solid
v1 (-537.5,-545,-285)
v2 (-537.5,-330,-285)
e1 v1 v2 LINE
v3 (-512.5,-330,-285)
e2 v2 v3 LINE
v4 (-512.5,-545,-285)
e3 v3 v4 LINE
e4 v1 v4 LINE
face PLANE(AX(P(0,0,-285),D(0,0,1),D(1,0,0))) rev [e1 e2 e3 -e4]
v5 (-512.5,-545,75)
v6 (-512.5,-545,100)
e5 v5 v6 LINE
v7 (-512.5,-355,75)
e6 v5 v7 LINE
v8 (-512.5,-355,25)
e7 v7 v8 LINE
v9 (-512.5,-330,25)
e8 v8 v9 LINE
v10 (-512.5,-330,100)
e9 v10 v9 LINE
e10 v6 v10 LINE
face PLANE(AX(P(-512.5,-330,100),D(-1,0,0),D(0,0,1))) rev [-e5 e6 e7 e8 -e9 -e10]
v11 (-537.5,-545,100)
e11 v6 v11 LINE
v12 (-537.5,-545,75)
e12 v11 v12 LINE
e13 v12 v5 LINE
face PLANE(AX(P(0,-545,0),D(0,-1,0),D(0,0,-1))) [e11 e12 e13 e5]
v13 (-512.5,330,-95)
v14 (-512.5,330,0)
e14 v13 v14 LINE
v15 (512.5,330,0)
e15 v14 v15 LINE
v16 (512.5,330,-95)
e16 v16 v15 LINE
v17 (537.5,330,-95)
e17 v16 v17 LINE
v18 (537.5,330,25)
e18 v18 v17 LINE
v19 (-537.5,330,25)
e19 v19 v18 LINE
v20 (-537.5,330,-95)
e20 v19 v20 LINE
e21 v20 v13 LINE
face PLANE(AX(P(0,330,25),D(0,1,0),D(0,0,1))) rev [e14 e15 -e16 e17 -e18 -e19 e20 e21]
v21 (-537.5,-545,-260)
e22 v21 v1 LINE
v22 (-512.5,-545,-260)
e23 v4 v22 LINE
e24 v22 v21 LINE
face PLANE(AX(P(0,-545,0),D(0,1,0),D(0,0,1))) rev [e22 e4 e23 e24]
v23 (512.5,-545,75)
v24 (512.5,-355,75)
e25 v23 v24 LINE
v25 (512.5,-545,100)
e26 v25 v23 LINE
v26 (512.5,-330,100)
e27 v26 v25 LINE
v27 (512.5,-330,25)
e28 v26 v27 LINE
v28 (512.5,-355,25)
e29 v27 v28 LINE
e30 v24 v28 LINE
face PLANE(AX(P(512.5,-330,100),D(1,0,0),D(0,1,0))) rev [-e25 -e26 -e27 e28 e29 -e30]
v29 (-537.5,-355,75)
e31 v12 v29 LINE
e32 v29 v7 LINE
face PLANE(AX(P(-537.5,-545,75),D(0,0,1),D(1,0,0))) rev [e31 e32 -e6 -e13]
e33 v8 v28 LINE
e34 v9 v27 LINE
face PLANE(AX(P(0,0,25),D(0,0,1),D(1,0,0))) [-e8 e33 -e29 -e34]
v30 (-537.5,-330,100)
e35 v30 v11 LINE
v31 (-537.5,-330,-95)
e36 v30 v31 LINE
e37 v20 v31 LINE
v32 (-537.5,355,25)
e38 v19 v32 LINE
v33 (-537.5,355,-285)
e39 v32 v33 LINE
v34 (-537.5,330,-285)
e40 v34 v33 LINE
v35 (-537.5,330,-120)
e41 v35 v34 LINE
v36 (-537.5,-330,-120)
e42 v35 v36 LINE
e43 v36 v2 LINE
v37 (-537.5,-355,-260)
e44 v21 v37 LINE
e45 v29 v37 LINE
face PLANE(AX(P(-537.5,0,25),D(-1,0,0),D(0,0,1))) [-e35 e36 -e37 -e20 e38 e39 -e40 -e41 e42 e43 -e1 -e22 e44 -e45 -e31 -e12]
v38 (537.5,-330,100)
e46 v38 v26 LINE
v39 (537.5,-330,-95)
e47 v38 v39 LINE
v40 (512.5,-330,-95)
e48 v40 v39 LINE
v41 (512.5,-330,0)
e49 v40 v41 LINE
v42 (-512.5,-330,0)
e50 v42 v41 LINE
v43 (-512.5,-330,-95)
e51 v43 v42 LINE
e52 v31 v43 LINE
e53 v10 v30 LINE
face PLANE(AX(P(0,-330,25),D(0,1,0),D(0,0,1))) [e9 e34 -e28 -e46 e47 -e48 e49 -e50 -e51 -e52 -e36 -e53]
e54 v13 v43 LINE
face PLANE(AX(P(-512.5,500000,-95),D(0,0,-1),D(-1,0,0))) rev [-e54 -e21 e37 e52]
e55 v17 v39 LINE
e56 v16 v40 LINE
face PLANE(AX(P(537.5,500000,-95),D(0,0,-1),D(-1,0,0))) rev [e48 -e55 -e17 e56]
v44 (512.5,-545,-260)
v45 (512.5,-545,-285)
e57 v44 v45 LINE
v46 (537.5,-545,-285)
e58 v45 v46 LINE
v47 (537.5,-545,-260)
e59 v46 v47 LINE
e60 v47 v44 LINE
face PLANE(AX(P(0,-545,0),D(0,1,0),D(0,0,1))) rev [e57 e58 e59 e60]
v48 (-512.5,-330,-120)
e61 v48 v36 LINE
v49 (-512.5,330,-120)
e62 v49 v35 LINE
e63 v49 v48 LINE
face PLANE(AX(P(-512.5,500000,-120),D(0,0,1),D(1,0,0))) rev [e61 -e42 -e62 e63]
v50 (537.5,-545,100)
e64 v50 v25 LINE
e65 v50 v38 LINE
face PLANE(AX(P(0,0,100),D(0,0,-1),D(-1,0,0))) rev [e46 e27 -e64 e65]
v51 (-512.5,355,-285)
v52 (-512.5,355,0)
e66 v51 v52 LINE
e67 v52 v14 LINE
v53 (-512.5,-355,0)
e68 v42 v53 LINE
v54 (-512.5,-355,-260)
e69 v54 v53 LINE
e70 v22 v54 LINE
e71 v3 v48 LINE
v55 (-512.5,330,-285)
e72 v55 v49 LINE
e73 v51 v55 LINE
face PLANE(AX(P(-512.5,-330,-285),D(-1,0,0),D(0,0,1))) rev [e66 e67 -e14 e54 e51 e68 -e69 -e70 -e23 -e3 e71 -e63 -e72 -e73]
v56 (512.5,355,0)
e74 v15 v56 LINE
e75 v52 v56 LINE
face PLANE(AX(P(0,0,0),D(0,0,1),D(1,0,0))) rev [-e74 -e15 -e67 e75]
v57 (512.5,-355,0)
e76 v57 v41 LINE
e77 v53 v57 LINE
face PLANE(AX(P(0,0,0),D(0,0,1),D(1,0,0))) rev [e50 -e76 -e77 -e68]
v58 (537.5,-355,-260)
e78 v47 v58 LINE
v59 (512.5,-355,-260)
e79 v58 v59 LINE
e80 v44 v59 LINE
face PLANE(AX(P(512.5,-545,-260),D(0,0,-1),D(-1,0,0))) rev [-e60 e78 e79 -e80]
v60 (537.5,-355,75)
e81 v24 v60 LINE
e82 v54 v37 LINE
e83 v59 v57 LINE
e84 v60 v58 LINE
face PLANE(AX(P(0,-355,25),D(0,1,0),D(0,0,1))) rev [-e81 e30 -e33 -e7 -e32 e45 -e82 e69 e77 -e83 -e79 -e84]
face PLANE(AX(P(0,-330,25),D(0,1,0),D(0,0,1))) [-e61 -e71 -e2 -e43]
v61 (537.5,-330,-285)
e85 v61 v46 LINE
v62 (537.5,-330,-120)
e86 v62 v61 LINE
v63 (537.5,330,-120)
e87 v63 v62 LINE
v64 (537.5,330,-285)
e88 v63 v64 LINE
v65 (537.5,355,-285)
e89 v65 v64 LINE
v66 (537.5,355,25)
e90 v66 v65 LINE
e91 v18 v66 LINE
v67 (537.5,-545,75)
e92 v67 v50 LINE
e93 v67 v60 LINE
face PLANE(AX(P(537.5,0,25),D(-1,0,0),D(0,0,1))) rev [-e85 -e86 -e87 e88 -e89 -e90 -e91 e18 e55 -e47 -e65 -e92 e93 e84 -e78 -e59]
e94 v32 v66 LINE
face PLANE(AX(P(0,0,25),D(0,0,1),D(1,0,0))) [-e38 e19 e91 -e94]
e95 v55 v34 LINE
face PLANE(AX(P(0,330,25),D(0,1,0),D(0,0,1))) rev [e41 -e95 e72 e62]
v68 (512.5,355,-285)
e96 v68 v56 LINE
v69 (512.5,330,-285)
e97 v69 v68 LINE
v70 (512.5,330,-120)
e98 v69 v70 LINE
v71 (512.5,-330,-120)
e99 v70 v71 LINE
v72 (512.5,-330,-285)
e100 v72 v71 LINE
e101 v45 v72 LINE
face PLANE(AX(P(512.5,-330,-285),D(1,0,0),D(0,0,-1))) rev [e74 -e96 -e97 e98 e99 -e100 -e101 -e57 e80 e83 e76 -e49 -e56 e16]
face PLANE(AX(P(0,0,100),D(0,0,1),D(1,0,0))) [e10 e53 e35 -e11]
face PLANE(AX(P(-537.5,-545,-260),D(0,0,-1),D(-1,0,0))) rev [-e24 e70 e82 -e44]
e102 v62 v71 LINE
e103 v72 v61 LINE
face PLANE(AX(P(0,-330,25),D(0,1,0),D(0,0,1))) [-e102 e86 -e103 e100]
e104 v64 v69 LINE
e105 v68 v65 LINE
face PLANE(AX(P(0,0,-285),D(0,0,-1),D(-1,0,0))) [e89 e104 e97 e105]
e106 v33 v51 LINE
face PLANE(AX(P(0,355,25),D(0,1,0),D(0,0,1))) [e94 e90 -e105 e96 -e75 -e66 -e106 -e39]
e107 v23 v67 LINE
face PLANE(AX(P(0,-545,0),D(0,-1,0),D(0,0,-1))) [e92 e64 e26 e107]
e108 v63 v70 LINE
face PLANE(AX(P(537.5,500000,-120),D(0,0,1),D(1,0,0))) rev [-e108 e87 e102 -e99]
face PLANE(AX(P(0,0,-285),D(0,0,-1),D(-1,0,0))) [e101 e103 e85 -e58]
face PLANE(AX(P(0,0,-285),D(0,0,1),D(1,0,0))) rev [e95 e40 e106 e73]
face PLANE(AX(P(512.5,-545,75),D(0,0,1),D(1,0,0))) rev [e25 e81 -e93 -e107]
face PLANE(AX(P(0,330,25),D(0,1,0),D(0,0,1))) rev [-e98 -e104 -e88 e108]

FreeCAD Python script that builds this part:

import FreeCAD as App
import Part
import Sketcher

doc = App.newDocument("Part")
body = doc.addObject("PartDesign::Body", "Body")

# Sketch on XY plane
sketch1 = body.newObject("Sketcher::SketchObject", "Sketch")
sketch1.AttachmentSupport = (doc.getObject("XY_Plane"), [""])
sketch1.MapMode = "FlatFace"
sketch1.addGeometry([
    Part.LineSegment(App.Vector(-537.5, -330, 0), App.Vector(-537.5, -355, 0)),
    Part.LineSegment(App.Vector(-537.5, -355, 0), App.Vector(537.5, -355, 0)),
    Part.LineSegment(App.Vector(537.5, -355, 0), App.Vector(537.5, -330, 0)),
    Part.LineSegment(App.Vector(537.5, -330, 0), App.Vector(-537.5, -330, 0)),
], False)
sketch1.addConstraint([
    Sketcher.Constraint("Coincident", 0, 2, 1, 1),
    Sketcher.Constraint("Coincident", 1, 2, 2, 1),
    Sketcher.Constraint("Coincident", 2, 2, 3, 1),
    Sketcher.Constraint("Coincident", 3, 2, 0, 1),
    Sketcher.Constraint("Vertical", 0),
    Sketcher.Constraint("Horizontal", 1),
    Sketcher.Constraint("Vertical", 2),
    Sketcher.Constraint("Horizontal", 3),
    Sketcher.Constraint("DistanceX", 1, 1, 1, 2, 1075.0),
    Sketcher.Constraint("DistanceY", 0, 2, 0, 1, 25.0),
    Sketcher.Constraint("DistanceY", 0, 2, -1, 1, 355.0),
    Sketcher.Constraint("DistanceX", 0, 2, -1, 1, 537.5),
])
pad1 = body.newObject("PartDesign::Pad", "Pad")
pad1.Profile = sketch1
pad1.Length = 25
body2 = doc.addObject("PartDesign::Body", "Body001")

# Sketch on XY plane
sketch2 = body2.newObject("Sketcher::SketchObject", "Sketch001")
sketch2.AttachmentSupport = (doc.getObject("XY_Plane001"), [""])
sketch2.MapMode = "FlatFace"
sketch2.addGeometry([
    Part.LineSegment(App.Vector(-537.5, 355, 0), App.Vector(-537.5, 330, 0)),
    Part.LineSegment(App.Vector(-537.5, 330, 0), App.Vector(537.5, 330, 0)),
    Part.LineSegment(App.Vector(537.5, 330, 0), App.Vector(537.5, 355, 0)),
    Part.LineSegment(App.Vector(537.5, 355, 0), App.Vector(-537.5, 355, 0)),
], False)
sketch2.addConstraint([
    Sketcher.Constraint("Coincident", 0, 2, 1, 1),
    Sketcher.Constraint("Coincident", 1, 2, 2, 1),
    Sketcher.Constraint("Coincident", 2, 2, 3, 1),
    Sketcher.Constraint("Coincident", 3, 2, 0, 1),
    Sketcher.Constraint("Vertical", 0),
    Sketcher.Constraint("Horizontal", 1),
    Sketcher.Constraint("Vertical", 2),
    Sketcher.Constraint("Horizontal", 3),
    Sketcher.Constraint("DistanceX", 1, 1, 1, 2, 1075.0),
    Sketcher.Constraint("DistanceY", 0, 2, 0, 1, 25.0),
    Sketcher.Constraint("DistanceY", -1, 1, 0, 2, 330.0),
    Sketcher.Constraint("DistanceX", 0, 2, -1, 1, 537.5),
])
pad2 = body2.newObject("PartDesign::Pad", "Pad001")
pad2.Profile = sketch2
pad2.Length = 25
body.AllowCompound = True
doc.recompute()

boolean = body.newObject("PartDesign::Boolean", "Boolean")
boolean.Type = "Fuse"
boolean.addObjects([body2])

# Sketch on XY plane
sketch3 = body.newObject("Sketcher::SketchObject", "Sketch002")
sketch3.AttachmentSupport = (doc.getObject("XY_Plane"), [""])
sketch3.MapMode = "FlatFace"
sketch3.addGeometry([
    Part.LineSegment(App.Vector(537.5, 355, 0), App.Vector(537.5, 330, 0)),  # 0
    Part.LineSegment(App.Vector(537.5, 330, 0), App.Vector(512.5, 330, 0)),  # 1
    Part.LineSegment(App.Vector(512.5, 330, 0), App.Vector(512.5, 355, 0)),  # 2
    Part.LineSegment(App.Vector(512.5, 355, 0), App.Vector(537.5, 355, 0)),  # 3
    Part.LineSegment(App.Vector(-512.5, 355, 0), App.Vector(-512.5, 330, 0)),  # 4
    Part.LineSegment(App.Vector(-512.5, 330, 0), App.Vector(-537.5, 330, 0)),  # 5
    Part.LineSegment(App.Vector(-537.5, 330, 0), App.Vector(-537.5, 355, 0)),  # 6
    Part.LineSegment(App.Vector(-537.5, 355, 0), App.Vector(-512.5, 355, 0)),  # 7
    Part.LineSegment(App.Vector(-512.5, -330, 0), App.Vector(-512.5, -355, 0)),  # 8
    Part.LineSegment(App.Vector(-512.5, -355, 0), App.Vector(-537.5, -355, 0)),  # 9
    Part.LineSegment(App.Vector(-537.5, -355, 0), App.Vector(-537.5, -330, 0)),  # 10
    Part.LineSegment(App.Vector(-537.5, -330, 0), App.Vector(-512.5, -330, 0)),  # 11
    Part.LineSegment(App.Vector(537.5, -330, 0), App.Vector(537.5, -355, 0)),  # 12
    Part.LineSegment(App.Vector(537.5, -355, 0), App.Vector(512.5, -355, 0)),  # 13
    Part.LineSegment(App.Vector(512.5, -355, 0), App.Vector(512.5, -330, 0)),  # 14
    Part.LineSegment(App.Vector(512.5, -330, 0), App.Vector(537.5, -330, 0)),  # 15
], False)
sketch3.addConstraint([
    Sketcher.Constraint("Coincident", 0, 2, 1, 1),
    Sketcher.Constraint("Coincident", 1, 2, 2, 1),
    Sketcher.Constraint("Coincident", 2, 2, 3, 1),
    Sketcher.Constraint("Coincident", 3, 2, 0, 1),
    Sketcher.Constraint("Coincident", 4, 2, 5, 1),
    Sketcher.Constraint("Coincident", 5, 2, 6, 1),
    Sketcher.Constraint("Coincident", 6, 2, 7, 1),
    Sketcher.Constraint("Coincident", 7, 2, 4, 1),
    Sketcher.Constraint("Coincident", 8, 2, 9, 1),
    Sketcher.Constraint("Coincident", 9, 2, 10, 1),
    Sketcher.Constraint("Coincident", 10, 2, 11, 1),
    Sketcher.Constraint("Coincident", 11, 2, 8, 1),
    Sketcher.Constraint("Coincident", 12, 2, 13, 1),
    Sketcher.Constraint("Coincident", 13, 2, 14, 1),
    Sketcher.Constraint("Coincident", 14, 2, 15, 1),
    Sketcher.Constraint("Coincident", 15, 2, 12, 1),
    Sketcher.Constraint("Vertical", 0),
    Sketcher.Constraint("Horizontal", 1),
    Sketcher.Constraint("Vertical", 2),
    Sketcher.Constraint("Horizontal", 3),
    Sketcher.Constraint("Vertical", 4),
    Sketcher.Constraint("Horizontal", 5),
    Sketcher.Constraint("Vertical", 6),
    Sketcher.Constraint("Horizontal", 7),
    Sketcher.Constraint("Vertical", 8),
    Sketcher.Constraint("Horizontal", 9),
    Sketcher.Constraint("Vertical", 10),
    Sketcher.Constraint("Horizontal", 11),
    Sketcher.Constraint("Vertical", 12),
    Sketcher.Constraint("Horizontal", 13),
    Sketcher.Constraint("Vertical", 14),
    Sketcher.Constraint("Horizontal", 15),
    Sketcher.Constraint("Symmetric", 2, 2, 8, 2, -1, 1),
    Sketcher.Constraint("Symmetric", 0, 2, 10, 2, -1, 1),
    Sketcher.Constraint("Symmetric", 6, 2, 12, 2, -1, 1),
    Sketcher.Constraint("Symmetric", 4, 2, 14, 2, -1, 1),
    Sketcher.Constraint("Symmetric", 1, 2, 4, 2, -2),
    Sketcher.Constraint("Symmetric", 3, 2, 6, 2, -2),
    Sketcher.Constraint("Equal", 15, 0),
    Sketcher.Constraint("DistanceX", 1, 2, 1, 1, 25.0),
    Sketcher.Constraint("DistanceY", -1, 1, 0, 2, 330.0),
    Sketcher.Constraint("DistanceX", 4, 2, 1, 2, 1025.0),
])
pad3 = body.newObject("PartDesign::Pad", "Pad002")
pad3.Profile = sketch3
pad3.Length = 285
pad3.Reversed = True

# Sketch on XZ plane
sketch4 = body.newObject("Sketcher::SketchObject", "Sketch003")
sketch4.AttachmentSupport = (doc.getObject("XZ_Plane"), [""])
sketch4.MapMode = "FlatFace"
sketch4.AttachmentOffset = App.Placement(App.Vector(0, 0, 330), App.Rotation())
sketch4.addGeometry([
    Part.LineSegment(App.Vector(-537.5, -120, 0), App.Vector(-537.5, -95, 0)),
    Part.LineSegment(App.Vector(-537.5, -95, 0), App.Vector(-512.5, -95, 0)),
    Part.LineSegment(App.Vector(-512.5, -95, 0), App.Vector(-512.5, -120, 0)),
    Part.LineSegment(App.Vector(-512.5, -120, 0), App.Vector(-537.5, -120, 0)),
], False)
sketch4.addConstraint([
    Sketcher.Constraint("Coincident", 0, 2, 1, 1),
    Sketcher.Constraint("Coincident", 1, 2, 2, 1),
    Sketcher.Constraint("Coincident", 2, 2, 3, 1),
    Sketcher.Constraint("Coincident", 3, 2, 0, 1),
    Sketcher.Constraint("Vertical", 0),
    Sketcher.Constraint("Horizontal", 1),
    Sketcher.Constraint("Vertical", 2),
    Sketcher.Constraint("Horizontal", 3),
    Sketcher.Constraint("Equal", 3, 0),
    Sketcher.Constraint("DistanceX", 1, 1, 1, 2, 25.0),
    Sketcher.Constraint("DistanceY", 0, 2, -1, 1, 95.0),
    Sketcher.Constraint("DistanceX", 0, 2, -1, 1, 537.5),
])
pad4 = body.newObject("PartDesign::Pad", "Pad003")
pad4.Profile = sketch4
pad4.Type = "UpToFirst"
pad4.Reversed = True

# Sketch on XZ plane
sketch5 = body.newObject("Sketcher::SketchObject", "Sketch004")
sketch5.AttachmentSupport = (doc.getObject("XZ_Plane"), [""])
sketch5.MapMode = "FlatFace"
sketch5.AttachmentOffset = App.Placement(App.Vector(0, 0, 330), App.Rotation())
sketch5.addGeometry([
    Part.LineSegment(App.Vector(512.5, -120, 0), App.Vector(512.5, -95, 0)),
    Part.LineSegment(App.Vector(512.5, -95, 0), App.Vector(537.5, -95, 0)),
    Part.LineSegment(App.Vector(537.5, -95, 0), App.Vector(537.5, -120, 0)),
    Part.LineSegment(App.Vector(537.5, -120, 0), App.Vector(512.5, -120, 0)),
], False)
sketch5.addConstraint([
    Sketcher.Constraint("Coincident", 0, 2, 1, 1),
    Sketcher.Constraint("Coincident", 1, 2, 2, 1),
    Sketcher.Constraint("Coincident", 2, 2, 3, 1),
    Sketcher.Constraint("Coincident", 3, 2, 0, 1),
    Sketcher.Constraint("Vertical", 0),
    Sketcher.Constraint("Horizontal", 1),
    Sketcher.Constraint("Vertical", 2),
    Sketcher.Constraint("Horizontal", 3),
    Sketcher.Constraint("Equal", 3, 0),
    Sketcher.Constraint("DistanceX", 1, 1, 1, 2, 25.0),
    Sketcher.Constraint("DistanceY", 0, 2, -1, 1, 95.0),
    Sketcher.Constraint("DistanceX", -1, 1, 0, 2, 512.5),
])
pad5 = body.newObject("PartDesign::Pad", "Pad004")
pad5.Profile = sketch5
pad5.Type = "UpToFirst"
pad5.Reversed = True

# Sketch on XY plane
sketch6 = body.newObject("Sketcher::SketchObject", "Sketch005")
sketch6.AttachmentSupport = (doc.getObject("XY_Plane"), [""])
sketch6.MapMode = "FlatFace"
sketch6.AttachmentOffset = App.Placement(App.Vector(0, 0, 25), App.Rotation())
sketch6.addGeometry([
    Part.LineSegment(App.Vector(-537.5, -330, 0), App.Vector(-537.5, -355, 0)),  # 0
    Part.LineSegment(App.Vector(-537.5, -355, 0), App.Vector(-512.5, -355, 0)),  # 1
    Part.LineSegment(App.Vector(-512.5, -355, 0), App.Vector(-512.5, -330, 0)),  # 2
    Part.LineSegment(App.Vector(-512.5, -330, 0), App.Vector(-537.5, -330, 0)),  # 3
    Part.LineSegment(App.Vector(512.5, -330, 0), App.Vector(512.5, -355, 0)),  # 4
    Part.LineSegment(App.Vector(512.5, -355, 0), App.Vector(537.5, -355, 0)),  # 5
    Part.LineSegment(App.Vector(537.5, -355, 0), App.Vector(537.5, -330, 0)),  # 6
    Part.LineSegment(App.Vector(537.5, -330, 0), App.Vector(512.5, -330, 0)),  # 7
], False)
sketch6.addConstraint([
    Sketcher.Constraint("Coincident", 0, 2, 1, 1),
    Sketcher.Constraint("Coincident", 1, 2, 2, 1),
    Sketcher.Constraint("Coincident", 2, 2, 3, 1),
    Sketcher.Constraint("Coincident", 3, 2, 0, 1),
    Sketcher.Constraint("Coincident", 4, 2, 5, 1),
    Sketcher.Constraint("Coincident", 5, 2, 6, 1),
    Sketcher.Constraint("Coincident", 6, 2, 7, 1),
    Sketcher.Constraint("Coincident", 7, 2, 4, 1),
    Sketcher.Constraint("Vertical", 0),
    Sketcher.Constraint("Horizontal", 1),
    Sketcher.Constraint("Vertical", 2),
    Sketcher.Constraint("Horizontal", 3),
    Sketcher.Constraint("Vertical", 4),
    Sketcher.Constraint("Horizontal", 5),
    Sketcher.Constraint("Vertical", 6),
    Sketcher.Constraint("Horizontal", 7),
    Sketcher.Constraint("Symmetric", 1, 2, 4, 2, -2),
    Sketcher.Constraint("Symmetric", 3, 2, 6, 2, -2),
    Sketcher.Constraint("Equal", 7, 0),
    Sketcher.Constraint("DistanceX", 1, 1, 1, 2, 25.0),
    Sketcher.Constraint("DistanceY", 0, 2, -1, 1, 355.0),
    Sketcher.Constraint("DistanceX", 1, 2, 4, 2, 1025.0),
])
pad6 = body.newObject("PartDesign::Pad", "Pad005")
pad6.Profile = sketch6
pad6.Length = 75

# Sketch on XZ plane
sketch7 = body.newObject("Sketcher::SketchObject", "Sketch006")
sketch7.AttachmentSupport = (doc.getObject("XZ_Plane"), [""])
sketch7.MapMode = "FlatFace"
sketch7.AttachmentOffset = App.Placement(App.Vector(0, 0, 355), App.Rotation())
sketch7.addGeometry([
    Part.LineSegment(App.Vector(-537.5, -260, 0), App.Vector(-537.5, -285, 0)),  # 0
    Part.LineSegment(App.Vector(-537.5, -285, 0), App.Vector(-512.5, -285, 0)),  # 1
    Part.LineSegment(App.Vector(-512.5, -285, 0), App.Vector(-512.5, -260, 0)),  # 2
    Part.LineSegment(App.Vector(-512.5, -260, 0), App.Vector(-537.5, -260, 0)),  # 3
    Part.LineSegment(App.Vector(-537.5, 100, 0), App.Vector(-537.5, 75, 0)),  # 4
    Part.LineSegment(App.Vector(-537.5, 75, 0), App.Vector(-512.5, 75, 0)),  # 5
    Part.LineSegment(App.Vector(-512.5, 75, 0), App.Vector(-512.5, 100, 0)),  # 6
    Part.LineSegment(App.Vector(-512.5, 100, 0), App.Vector(-537.5, 100, 0)),  # 7
    Part.LineSegment(App.Vector(512.5, 100, 0), App.Vector(512.5, 75, 0)),  # 8
    Part.LineSegment(App.Vector(512.5, 75, 0), App.Vector(537.5, 75, 0)),  # 9
    Part.LineSegment(App.Vector(537.5, 75, 0), App.Vector(537.5, 100, 0)),  # 10
    Part.LineSegment(App.Vector(537.5, 100, 0), App.Vector(512.5, 100, 0)),  # 11
    Part.LineSegment(App.Vector(512.5, -260, 0), App.Vector(512.5, -285, 0)),  # 12
    Part.LineSegment(App.Vector(512.5, -285, 0), App.Vector(537.5, -285, 0)),  # 13
    Part.LineSegment(App.Vector(537.5, -285, 0), App.Vector(537.5, -260, 0)),  # 14
    Part.LineSegment(App.Vector(537.5, -260, 0), App.Vector(512.5, -260, 0)),  # 15
], False)
sketch7.addConstraint([
    Sketcher.Constraint("Coincident", 0, 2, 1, 1),
    Sketcher.Constraint("Coincident", 1, 2, 2, 1),
    Sketcher.Constraint("Coincident", 2, 2, 3, 1),
    Sketcher.Constraint("Coincident", 3, 2, 0, 1),
    Sketcher.Constraint("Coincident", 4, 2, 5, 1),
    Sketcher.Constraint("Coincident", 5, 2, 6, 1),
    Sketcher.Constraint("Coincident", 6, 2, 7, 1),
    Sketcher.Constraint("Coincident", 7, 2, 4, 1),
    Sketcher.Constraint("Coincident", 8, 2, 9, 1),
    Sketcher.Constraint("Coincident", 9, 2, 10, 1),
    Sketcher.Constraint("Coincident", 10, 2, 11, 1),
    Sketcher.Constraint("Coincident", 11, 2, 8, 1),
    Sketcher.Constraint("Coincident", 12, 2, 13, 1),
    Sketcher.Constraint("Coincident", 13, 2, 14, 1),
    Sketcher.Constraint("Coincident", 14, 2, 15, 1),
    Sketcher.Constraint("Coincident", 15, 2, 12, 1),
    Sketcher.Constraint("Vertical", 0),
    Sketcher.Constraint("Horizontal", 1),
    Sketcher.Constraint("Vertical", 2),
    Sketcher.Constraint("Horizontal", 3),
    Sketcher.Constraint("Vertical", 4),
    Sketcher.Constraint("Horizontal", 5),
    Sketcher.Constraint("Vertical", 6),
    Sketcher.Constraint("Horizontal", 7),
    Sketcher.Constraint("Vertical", 8),
    Sketcher.Constraint("Horizontal", 9),
    Sketcher.Constraint("Vertical", 10),
    Sketcher.Constraint("Horizontal", 11),
    Sketcher.Constraint("Vertical", 12),
    Sketcher.Constraint("Horizontal", 13),
    Sketcher.Constraint("Vertical", 14),
    Sketcher.Constraint("Horizontal", 15),
    Sketcher.Constraint("Symmetric", 5, 2, 8, 2, -2),
    Sketcher.Constraint("Symmetric", 7, 2, 10, 2, -2),
    Sketcher.Constraint("Symmetric", 1, 2, 12, 2, -2),
    Sketcher.Constraint("Symmetric", 3, 2, 14, 2, -2),
    Sketcher.Constraint("Vertical", 3, 2, 4, 2),
    Sketcher.Constraint("Vertical", 2, 2, 5, 2),
    Sketcher.Constraint("Equal", 15, 0),
    Sketcher.Constraint("Equal", 2, 4),
    Sketcher.Constraint("DistanceX", 1, 1, 1, 2, 25.0),
    Sketcher.Constraint("DistanceY", 0, 2, -1, 1, 285.0),
    Sketcher.Constraint("DistanceY", -1, 1, 4, 2, 75.0),
    Sketcher.Constraint("DistanceX", 5, 2, 8, 2, 1025.0),
])
pad7 = body.newObject("PartDesign::Pad", "Pad006")
pad7.Profile = sketch7
pad7.Length = 190

doc.recompute()
